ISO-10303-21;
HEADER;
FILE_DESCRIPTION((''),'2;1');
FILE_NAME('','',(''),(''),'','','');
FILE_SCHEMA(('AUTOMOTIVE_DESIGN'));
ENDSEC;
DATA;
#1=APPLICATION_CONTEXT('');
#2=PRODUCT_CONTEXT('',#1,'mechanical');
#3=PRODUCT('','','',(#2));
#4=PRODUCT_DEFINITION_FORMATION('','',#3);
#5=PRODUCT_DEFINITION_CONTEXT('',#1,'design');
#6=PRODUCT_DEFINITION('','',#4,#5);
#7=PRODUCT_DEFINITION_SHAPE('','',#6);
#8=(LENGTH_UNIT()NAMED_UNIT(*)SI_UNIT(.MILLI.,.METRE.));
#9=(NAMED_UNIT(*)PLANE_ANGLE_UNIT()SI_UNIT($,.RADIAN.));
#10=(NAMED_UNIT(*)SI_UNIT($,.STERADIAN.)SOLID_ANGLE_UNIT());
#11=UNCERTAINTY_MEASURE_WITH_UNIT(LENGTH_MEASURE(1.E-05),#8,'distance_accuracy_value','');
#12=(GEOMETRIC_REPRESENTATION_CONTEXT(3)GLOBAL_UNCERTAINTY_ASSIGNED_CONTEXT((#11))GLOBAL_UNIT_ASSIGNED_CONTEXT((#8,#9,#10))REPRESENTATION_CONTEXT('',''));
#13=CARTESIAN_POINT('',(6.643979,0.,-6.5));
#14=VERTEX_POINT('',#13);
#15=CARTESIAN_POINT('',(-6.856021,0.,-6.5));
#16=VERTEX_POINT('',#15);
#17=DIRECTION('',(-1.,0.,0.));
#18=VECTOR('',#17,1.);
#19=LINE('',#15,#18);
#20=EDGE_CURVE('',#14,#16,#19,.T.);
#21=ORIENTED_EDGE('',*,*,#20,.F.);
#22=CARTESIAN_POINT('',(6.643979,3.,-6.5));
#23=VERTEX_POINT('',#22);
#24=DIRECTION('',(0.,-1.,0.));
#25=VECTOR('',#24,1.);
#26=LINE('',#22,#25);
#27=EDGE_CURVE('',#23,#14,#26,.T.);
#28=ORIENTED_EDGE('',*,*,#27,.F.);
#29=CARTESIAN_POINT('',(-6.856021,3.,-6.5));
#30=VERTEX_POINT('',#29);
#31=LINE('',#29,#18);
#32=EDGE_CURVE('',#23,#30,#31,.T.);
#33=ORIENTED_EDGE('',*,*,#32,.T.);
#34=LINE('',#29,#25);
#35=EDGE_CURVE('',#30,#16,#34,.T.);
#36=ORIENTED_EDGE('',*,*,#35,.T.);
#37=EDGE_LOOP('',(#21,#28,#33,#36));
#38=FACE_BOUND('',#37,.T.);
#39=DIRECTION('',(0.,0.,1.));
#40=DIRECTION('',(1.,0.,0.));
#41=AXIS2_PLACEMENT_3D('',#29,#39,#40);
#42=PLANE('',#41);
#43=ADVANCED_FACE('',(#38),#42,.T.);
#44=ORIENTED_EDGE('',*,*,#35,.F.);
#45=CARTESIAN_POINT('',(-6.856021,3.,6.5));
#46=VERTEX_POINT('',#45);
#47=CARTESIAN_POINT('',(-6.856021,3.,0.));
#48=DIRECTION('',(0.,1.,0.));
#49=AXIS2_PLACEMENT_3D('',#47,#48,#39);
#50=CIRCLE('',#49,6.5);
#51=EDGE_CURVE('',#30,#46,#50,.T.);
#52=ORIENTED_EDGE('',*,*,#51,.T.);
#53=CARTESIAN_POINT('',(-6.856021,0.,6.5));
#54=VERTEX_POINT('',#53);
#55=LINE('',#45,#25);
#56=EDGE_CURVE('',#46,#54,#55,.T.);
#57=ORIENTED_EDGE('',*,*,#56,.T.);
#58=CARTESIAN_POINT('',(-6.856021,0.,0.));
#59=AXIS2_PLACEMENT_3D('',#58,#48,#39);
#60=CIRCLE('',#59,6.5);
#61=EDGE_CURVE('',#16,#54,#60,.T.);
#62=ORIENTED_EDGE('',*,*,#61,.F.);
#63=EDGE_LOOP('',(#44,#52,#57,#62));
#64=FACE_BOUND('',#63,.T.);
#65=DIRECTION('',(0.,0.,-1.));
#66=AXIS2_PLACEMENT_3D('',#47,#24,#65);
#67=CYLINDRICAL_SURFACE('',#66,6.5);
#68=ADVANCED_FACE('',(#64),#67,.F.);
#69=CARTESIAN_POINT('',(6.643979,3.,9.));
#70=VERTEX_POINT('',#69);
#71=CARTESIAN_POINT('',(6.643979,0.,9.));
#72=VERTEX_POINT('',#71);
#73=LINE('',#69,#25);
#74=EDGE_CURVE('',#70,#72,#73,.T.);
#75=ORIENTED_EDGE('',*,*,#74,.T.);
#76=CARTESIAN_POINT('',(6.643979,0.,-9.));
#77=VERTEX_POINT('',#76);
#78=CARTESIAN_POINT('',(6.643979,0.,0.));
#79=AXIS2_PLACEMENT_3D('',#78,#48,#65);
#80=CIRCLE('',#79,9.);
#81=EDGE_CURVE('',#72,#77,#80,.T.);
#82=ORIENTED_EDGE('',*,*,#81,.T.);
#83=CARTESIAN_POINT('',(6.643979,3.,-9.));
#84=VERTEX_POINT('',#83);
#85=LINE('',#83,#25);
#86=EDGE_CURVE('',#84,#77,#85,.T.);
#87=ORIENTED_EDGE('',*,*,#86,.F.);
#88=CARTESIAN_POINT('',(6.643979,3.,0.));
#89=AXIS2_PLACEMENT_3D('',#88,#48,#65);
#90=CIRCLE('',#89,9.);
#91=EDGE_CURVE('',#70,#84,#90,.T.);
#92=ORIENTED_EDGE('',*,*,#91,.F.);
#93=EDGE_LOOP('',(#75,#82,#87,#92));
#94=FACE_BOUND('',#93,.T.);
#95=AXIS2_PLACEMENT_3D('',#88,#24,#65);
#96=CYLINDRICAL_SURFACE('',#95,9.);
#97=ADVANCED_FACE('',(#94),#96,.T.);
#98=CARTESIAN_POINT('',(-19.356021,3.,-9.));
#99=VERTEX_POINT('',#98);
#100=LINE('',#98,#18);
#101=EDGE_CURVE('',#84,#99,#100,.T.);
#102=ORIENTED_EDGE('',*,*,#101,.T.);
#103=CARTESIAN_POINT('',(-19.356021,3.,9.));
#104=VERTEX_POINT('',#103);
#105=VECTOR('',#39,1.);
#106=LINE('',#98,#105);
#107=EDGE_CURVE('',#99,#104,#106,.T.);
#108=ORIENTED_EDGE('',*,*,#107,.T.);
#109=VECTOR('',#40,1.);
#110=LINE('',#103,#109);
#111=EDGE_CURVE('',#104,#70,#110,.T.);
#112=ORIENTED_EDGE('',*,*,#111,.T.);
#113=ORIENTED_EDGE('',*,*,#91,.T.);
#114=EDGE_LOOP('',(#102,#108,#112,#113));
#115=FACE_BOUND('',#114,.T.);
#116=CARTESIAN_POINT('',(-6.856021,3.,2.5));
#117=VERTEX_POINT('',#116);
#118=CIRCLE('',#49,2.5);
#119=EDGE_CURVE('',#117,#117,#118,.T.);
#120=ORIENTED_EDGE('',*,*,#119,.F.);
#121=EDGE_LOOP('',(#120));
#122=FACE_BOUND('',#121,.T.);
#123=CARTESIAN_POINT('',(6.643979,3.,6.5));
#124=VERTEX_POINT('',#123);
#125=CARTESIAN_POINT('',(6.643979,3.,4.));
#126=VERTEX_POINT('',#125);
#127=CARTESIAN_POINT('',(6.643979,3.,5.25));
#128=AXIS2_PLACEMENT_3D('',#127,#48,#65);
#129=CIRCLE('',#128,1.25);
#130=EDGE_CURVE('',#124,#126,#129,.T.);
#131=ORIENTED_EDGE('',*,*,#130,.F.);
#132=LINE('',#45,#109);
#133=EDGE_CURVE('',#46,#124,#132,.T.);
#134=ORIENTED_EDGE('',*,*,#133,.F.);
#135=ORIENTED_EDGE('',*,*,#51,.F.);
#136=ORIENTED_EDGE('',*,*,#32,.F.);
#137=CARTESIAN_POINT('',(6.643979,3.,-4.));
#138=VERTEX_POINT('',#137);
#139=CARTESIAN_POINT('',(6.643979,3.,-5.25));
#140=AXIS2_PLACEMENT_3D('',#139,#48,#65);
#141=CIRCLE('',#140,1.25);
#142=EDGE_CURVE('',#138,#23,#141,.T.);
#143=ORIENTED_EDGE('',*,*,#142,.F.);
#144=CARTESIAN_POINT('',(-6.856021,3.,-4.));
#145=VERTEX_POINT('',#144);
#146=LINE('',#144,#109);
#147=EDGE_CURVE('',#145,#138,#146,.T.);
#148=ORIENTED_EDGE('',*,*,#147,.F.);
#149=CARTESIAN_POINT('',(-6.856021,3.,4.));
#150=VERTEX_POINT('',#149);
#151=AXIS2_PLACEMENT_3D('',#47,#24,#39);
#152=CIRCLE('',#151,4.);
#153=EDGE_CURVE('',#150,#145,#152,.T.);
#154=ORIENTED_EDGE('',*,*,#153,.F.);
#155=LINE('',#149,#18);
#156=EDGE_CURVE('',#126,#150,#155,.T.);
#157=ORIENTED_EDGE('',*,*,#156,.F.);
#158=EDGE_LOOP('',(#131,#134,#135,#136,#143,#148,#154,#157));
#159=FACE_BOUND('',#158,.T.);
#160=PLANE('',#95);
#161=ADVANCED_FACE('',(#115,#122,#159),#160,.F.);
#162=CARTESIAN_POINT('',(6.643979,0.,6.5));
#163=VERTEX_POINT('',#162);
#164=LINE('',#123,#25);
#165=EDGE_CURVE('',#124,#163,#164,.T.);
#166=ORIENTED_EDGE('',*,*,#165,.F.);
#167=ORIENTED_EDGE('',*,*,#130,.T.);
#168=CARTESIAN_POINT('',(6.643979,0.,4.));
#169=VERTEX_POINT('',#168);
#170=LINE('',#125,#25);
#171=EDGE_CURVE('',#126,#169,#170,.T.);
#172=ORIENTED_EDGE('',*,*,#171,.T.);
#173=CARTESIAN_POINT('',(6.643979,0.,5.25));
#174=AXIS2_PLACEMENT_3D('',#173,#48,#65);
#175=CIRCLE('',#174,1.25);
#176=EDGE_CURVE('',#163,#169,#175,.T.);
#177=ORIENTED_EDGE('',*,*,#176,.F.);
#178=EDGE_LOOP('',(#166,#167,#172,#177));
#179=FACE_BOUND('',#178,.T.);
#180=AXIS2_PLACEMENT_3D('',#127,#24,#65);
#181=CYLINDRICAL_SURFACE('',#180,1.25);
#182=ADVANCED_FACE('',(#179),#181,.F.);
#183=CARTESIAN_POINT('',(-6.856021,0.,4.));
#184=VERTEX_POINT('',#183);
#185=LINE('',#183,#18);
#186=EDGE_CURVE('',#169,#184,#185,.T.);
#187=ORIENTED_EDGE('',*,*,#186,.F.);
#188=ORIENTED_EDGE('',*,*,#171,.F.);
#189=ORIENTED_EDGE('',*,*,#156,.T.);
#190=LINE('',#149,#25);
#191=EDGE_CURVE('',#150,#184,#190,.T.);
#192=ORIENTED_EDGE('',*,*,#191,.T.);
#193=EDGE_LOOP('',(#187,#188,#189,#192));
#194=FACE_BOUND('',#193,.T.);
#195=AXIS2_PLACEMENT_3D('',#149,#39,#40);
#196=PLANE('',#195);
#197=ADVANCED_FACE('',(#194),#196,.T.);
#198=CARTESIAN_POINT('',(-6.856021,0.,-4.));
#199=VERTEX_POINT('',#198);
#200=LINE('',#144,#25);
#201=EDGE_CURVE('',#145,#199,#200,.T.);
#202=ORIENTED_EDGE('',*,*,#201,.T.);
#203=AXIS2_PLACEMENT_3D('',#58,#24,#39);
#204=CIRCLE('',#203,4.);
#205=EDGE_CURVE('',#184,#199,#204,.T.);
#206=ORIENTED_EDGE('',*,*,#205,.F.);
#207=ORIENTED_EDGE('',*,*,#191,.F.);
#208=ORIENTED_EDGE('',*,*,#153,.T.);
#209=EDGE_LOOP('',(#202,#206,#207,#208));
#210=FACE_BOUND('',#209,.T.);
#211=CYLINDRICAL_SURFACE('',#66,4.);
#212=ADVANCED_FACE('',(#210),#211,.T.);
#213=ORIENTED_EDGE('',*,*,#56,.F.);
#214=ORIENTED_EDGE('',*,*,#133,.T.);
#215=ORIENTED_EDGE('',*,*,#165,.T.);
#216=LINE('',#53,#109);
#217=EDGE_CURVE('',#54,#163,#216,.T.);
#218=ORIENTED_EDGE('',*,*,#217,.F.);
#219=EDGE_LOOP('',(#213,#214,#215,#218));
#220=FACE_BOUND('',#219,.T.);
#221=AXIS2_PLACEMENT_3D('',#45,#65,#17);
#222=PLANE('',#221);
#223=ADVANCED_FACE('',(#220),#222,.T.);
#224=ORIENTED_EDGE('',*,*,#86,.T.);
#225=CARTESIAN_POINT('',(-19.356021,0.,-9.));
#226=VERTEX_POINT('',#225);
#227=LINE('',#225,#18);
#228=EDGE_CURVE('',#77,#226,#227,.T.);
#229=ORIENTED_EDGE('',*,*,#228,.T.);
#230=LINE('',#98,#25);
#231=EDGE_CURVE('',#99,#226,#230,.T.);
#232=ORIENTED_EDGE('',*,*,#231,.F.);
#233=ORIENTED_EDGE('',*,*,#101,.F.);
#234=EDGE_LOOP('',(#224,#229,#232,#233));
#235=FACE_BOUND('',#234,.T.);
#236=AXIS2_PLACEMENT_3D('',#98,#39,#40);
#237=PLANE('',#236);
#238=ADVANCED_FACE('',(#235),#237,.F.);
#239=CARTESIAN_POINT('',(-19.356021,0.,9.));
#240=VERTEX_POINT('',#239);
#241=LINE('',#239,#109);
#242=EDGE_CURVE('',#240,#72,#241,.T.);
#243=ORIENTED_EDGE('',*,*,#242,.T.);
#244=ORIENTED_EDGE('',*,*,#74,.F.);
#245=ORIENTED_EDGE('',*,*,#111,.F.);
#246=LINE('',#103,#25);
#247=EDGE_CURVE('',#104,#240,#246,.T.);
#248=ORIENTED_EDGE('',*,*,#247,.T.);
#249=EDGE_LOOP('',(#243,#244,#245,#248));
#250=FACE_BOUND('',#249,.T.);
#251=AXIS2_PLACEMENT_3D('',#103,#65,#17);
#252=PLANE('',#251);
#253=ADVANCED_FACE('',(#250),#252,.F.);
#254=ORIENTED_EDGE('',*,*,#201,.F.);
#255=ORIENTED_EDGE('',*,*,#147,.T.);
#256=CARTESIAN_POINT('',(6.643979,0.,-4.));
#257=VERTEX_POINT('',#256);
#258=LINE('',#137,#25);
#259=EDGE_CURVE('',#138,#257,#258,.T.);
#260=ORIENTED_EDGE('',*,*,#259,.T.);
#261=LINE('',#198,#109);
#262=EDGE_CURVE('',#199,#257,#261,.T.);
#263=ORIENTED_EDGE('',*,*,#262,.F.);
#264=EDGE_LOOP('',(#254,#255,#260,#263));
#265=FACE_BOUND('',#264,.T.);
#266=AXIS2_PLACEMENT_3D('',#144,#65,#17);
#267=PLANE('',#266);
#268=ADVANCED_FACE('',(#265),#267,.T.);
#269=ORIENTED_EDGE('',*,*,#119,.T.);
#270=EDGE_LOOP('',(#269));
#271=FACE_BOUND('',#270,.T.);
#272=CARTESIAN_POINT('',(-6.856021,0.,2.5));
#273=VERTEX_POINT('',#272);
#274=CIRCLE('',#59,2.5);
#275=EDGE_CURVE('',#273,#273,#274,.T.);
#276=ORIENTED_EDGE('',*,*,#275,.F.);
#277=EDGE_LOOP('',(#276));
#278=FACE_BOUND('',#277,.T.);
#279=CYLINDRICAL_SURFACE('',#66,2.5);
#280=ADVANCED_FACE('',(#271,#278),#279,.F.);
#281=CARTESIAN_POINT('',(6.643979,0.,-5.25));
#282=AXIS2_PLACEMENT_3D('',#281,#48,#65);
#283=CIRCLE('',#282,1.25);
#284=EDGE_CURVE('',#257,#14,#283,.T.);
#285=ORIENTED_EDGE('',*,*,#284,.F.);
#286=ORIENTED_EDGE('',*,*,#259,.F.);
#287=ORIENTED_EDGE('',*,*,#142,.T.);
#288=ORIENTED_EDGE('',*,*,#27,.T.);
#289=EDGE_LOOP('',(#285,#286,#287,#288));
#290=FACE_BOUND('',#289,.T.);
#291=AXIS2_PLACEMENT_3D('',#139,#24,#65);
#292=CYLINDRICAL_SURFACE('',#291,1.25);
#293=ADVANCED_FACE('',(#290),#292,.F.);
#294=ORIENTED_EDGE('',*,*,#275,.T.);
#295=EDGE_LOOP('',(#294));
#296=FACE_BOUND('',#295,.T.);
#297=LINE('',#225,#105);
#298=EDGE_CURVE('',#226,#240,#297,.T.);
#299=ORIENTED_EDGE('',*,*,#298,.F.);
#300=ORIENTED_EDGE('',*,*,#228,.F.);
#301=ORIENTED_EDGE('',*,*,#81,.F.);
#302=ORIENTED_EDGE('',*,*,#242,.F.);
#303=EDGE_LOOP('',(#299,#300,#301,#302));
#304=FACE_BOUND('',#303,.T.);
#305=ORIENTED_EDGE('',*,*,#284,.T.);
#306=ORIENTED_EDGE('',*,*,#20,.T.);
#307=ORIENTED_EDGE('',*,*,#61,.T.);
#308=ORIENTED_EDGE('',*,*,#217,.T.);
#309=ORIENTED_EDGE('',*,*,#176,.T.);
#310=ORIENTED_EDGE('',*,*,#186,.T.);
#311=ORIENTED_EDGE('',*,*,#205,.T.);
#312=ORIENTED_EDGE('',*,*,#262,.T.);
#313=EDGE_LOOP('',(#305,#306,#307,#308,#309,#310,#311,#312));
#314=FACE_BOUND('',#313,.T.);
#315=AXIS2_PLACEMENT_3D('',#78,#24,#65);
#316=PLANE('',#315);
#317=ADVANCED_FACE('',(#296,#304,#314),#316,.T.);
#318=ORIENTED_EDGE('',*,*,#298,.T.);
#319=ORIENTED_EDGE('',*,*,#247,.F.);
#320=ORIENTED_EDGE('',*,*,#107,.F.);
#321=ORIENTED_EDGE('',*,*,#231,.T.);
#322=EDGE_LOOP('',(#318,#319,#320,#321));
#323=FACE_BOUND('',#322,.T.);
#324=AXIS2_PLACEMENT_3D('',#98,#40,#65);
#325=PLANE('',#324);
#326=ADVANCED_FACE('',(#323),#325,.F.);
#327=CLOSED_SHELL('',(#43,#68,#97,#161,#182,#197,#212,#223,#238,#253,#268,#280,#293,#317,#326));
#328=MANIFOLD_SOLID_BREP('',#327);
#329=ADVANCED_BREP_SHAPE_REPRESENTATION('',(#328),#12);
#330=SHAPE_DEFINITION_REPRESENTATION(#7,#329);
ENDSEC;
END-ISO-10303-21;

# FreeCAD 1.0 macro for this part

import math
import FreeCAD as App
import Part
import Sketcher
from FreeCAD import Vector
Q = App.Units.Quantity

doc = App.newDocument("Part")
body = doc.addObject("PartDesign::Body", "Body")

# Sketch on XZ plane
sketch1 = doc.addObject("Sketcher::SketchObject", "Sketch")
body.addObject(sketch1)
sketch1.AttachmentSupport = (doc.XZ_Plane, [""])
sketch1.MapMode = "FlatFace"
sketch1.addGeometry([
    Part.LineSegment(Vector(6.643979, -9, 0), Vector(-19.356021, -9, 0)),  # 0
    Part.LineSegment(Vector(-19.356021, -9, 0), Vector(-19.356021, 9, 0)),  # 1
    Part.LineSegment(Vector(-19.356021, 9, 0), Vector(6.643979, 9, 0)),  # 2
    Part.ArcOfCircle(Part.Circle(Vector(6.643979, 0, 0), Vector(0, 0, 1), 9), math.radians(-90), math.radians(90)),  # 3
    Part.ArcOfCircle(Part.Circle(Vector(-6.856021, 0, 0), Vector(0, 0, 1), 6.5), math.radians(90), math.radians(270)),  # 4
    Part.LineSegment(Vector(-6.856021, -6.5, 0), Vector(6.643979, -6.5, 0)),  # 5
    Part.ArcOfCircle(Part.Circle(Vector(6.643979, -5.25, 0), Vector(0, 0, 1), 1.25), math.radians(-90), math.radians(90)),  # 6
    Part.LineSegment(Vector(6.643979, -4, 0), Vector(-6.856021, -4, 0)),  # 7
    Part.ArcOfCircle(Part.Circle(Vector(-6.856021, 0, 0), Vector(0, 0, 1), 4), math.radians(90), math.radians(270)),  # 8
    Part.LineSegment(Vector(-6.856021, 4, 0), Vector(6.643979, 4, 0)),  # 9
    Part.ArcOfCircle(Part.Circle(Vector(6.643979, 5.25, 0), Vector(0, 0, 1), 1.25), math.radians(-90), math.radians(90)),  # 10
    Part.LineSegment(Vector(6.643979, 6.5, 0), Vector(-6.856021, 6.5, 0)),  # 11
    Part.Circle(Vector(-6.856021, 0, 0), Vector(0, 0, 1), 2.5),  # 12
], False)
sketch1.addConstraint([
    Sketcher.Constraint("Coincident", 0, 2, 1, 1),
    Sketcher.Constraint("Coincident", 1, 2, 2, 1),
    Sketcher.Constraint("Tangent", 2, 2, 3, 2),
    Sketcher.Constraint("Tangent", 3, 1, 0, 1),
    Sketcher.Constraint("Tangent", 4, 2, 5, 1),
    Sketcher.Constraint("Tangent", 5, 2, 6, 1),
    Sketcher.Constraint("Tangent", 6, 2, 7, 1),
    Sketcher.Constraint("Tangent", 7, 2, 8, 2),
    Sketcher.Constraint("Tangent", 8, 1, 9, 1),
    Sketcher.Constraint("Tangent", 9, 2, 10, 1),
    Sketcher.Constraint("Tangent", 10, 2, 11, 1),
    Sketcher.Constraint("Tangent", 11, 2, 4, 1),
    Sketcher.Constraint("Horizontal", 0),
    Sketcher.Constraint("Vertical", 1),
    Sketcher.Constraint("Horizontal", 2),
    Sketcher.Constraint("Horizontal", 5),
    Sketcher.Constraint("Horizontal", 7),
    Sketcher.Constraint("Horizontal", 9),
    Sketcher.Constraint("Horizontal", 11),
    Sketcher.Constraint("Coincident", 8, 3, 4, 3),
    Sketcher.Constraint("Coincident", 12, 3, 4, 3),
    Sketcher.Constraint("Symmetric", 6, 3, 10, 3, -1),
    Sketcher.Constraint("PointOnObject", 3, 3, -1),
    Sketcher.Constraint("Vertical", 3, 3, 6, 3),
    Sketcher.Constraint("Diameter", 12, Q("5 mm")),
    Sketcher.Constraint("Radius", 3, Q("9 mm")),
    Sketcher.Constraint("Radius", 8, Q("4 mm")),
    Sketcher.Constraint("Radius", 4, Q("6.5 mm")),
    Sketcher.Constraint("DistanceX", 0, 2, 0, 1, Q("26 mm")),
    Sketcher.Constraint("DistanceX", 5, 1, 5, 2, Q("13.5 mm")),
    Sketcher.Constraint("DistanceX", -1, 1, 3, 3, Q("6.643979 mm")),
])
pad1 = doc.addObject("PartDesign::Pad", "Pad")
body.addObject(pad1)
pad1.Profile = sketch1
pad1.Length = 3
pad1.Reversed = True

doc.recompute()
